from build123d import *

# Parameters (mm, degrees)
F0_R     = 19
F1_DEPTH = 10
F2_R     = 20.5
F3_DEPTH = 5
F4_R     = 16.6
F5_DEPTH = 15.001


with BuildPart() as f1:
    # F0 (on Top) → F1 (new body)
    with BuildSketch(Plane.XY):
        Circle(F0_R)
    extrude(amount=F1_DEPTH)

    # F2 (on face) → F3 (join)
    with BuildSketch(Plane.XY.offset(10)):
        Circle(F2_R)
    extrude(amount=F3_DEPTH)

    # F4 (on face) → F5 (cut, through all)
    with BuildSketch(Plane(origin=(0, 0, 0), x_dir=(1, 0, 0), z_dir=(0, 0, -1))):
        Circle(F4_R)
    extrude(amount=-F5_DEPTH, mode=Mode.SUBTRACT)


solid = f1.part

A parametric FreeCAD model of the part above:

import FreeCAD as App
import Part
import Sketcher
from FreeCAD import Vector
Q = App.Units.Quantity

doc = App.newDocument("Part")
body = doc.addObject("PartDesign::Body", "Body")

sketch1 = body.newObject("Sketcher::SketchObject", "Sketch")
sketch1.AttachmentSupport = (doc.getObject("XY_Plane"), [""])
sketch1.MapMode = "FlatFace"
sketch1.addGeometry(Part.Circle(Vector(0, 0, 0), Vector(0, 0, 1), 19), False)
sketch1.addConstraint(Sketcher.Constraint("Coincident", 0, 3, -1, 1))
sketch1.addConstraint(Sketcher.Constraint("Diameter", 0, Q("38 mm")))
pad1 = body.newObject("PartDesign::Pad", "Pad")
pad1.Profile = sketch1
pad1.Length = 10

sketch2 = body.newObject("Sketcher::SketchObject", "Sketch001")
sketch2.AttachmentSupport = (doc.getObject("XY_Plane"), [""])
sketch2.MapMode = "FlatFace"
sketch2.AttachmentOffset = App.Placement(Vector(0, 0, 10), App.Rotation())
sketch2.addGeometry(Part.Circle(Vector(0, 0, 0), Vector(0, 0, 1), 20), False)
sketch2.addConstraint(Sketcher.Constraint("Coincident", 0, 3, -1, 1))
sketch2.addConstraint(Sketcher.Constraint("Diameter", 0, Q("41 mm")))
pad2 = body.newObject("PartDesign::Pad", "Pad001")
pad2.Profile = sketch2
pad2.Length = 5

sketch3 = body.newObject("Sketcher::SketchObject", "Sketch002")
sketch3.AttachmentSupport = (doc.getObject("XY_Plane"), [""])
sketch3.MapMode = "FlatFace"
sketch3.addGeometry(Part.Circle(Vector(0, 0, 0), Vector(0, 0, 1), 17), False)
sketch3.addConstraint(Sketcher.Constraint("Coincident", 0, 3, -1, 1))
sketch3.addConstraint(Sketcher.Constraint("Diameter", 0, Q("33.2 mm")))
pocket1 = body.newObject("PartDesign::Pocket", "Pocket")
pocket1.Profile = sketch3
pocket1.Type = "ThroughAll"
pocket1.Reversed = True

doc.recompute()
